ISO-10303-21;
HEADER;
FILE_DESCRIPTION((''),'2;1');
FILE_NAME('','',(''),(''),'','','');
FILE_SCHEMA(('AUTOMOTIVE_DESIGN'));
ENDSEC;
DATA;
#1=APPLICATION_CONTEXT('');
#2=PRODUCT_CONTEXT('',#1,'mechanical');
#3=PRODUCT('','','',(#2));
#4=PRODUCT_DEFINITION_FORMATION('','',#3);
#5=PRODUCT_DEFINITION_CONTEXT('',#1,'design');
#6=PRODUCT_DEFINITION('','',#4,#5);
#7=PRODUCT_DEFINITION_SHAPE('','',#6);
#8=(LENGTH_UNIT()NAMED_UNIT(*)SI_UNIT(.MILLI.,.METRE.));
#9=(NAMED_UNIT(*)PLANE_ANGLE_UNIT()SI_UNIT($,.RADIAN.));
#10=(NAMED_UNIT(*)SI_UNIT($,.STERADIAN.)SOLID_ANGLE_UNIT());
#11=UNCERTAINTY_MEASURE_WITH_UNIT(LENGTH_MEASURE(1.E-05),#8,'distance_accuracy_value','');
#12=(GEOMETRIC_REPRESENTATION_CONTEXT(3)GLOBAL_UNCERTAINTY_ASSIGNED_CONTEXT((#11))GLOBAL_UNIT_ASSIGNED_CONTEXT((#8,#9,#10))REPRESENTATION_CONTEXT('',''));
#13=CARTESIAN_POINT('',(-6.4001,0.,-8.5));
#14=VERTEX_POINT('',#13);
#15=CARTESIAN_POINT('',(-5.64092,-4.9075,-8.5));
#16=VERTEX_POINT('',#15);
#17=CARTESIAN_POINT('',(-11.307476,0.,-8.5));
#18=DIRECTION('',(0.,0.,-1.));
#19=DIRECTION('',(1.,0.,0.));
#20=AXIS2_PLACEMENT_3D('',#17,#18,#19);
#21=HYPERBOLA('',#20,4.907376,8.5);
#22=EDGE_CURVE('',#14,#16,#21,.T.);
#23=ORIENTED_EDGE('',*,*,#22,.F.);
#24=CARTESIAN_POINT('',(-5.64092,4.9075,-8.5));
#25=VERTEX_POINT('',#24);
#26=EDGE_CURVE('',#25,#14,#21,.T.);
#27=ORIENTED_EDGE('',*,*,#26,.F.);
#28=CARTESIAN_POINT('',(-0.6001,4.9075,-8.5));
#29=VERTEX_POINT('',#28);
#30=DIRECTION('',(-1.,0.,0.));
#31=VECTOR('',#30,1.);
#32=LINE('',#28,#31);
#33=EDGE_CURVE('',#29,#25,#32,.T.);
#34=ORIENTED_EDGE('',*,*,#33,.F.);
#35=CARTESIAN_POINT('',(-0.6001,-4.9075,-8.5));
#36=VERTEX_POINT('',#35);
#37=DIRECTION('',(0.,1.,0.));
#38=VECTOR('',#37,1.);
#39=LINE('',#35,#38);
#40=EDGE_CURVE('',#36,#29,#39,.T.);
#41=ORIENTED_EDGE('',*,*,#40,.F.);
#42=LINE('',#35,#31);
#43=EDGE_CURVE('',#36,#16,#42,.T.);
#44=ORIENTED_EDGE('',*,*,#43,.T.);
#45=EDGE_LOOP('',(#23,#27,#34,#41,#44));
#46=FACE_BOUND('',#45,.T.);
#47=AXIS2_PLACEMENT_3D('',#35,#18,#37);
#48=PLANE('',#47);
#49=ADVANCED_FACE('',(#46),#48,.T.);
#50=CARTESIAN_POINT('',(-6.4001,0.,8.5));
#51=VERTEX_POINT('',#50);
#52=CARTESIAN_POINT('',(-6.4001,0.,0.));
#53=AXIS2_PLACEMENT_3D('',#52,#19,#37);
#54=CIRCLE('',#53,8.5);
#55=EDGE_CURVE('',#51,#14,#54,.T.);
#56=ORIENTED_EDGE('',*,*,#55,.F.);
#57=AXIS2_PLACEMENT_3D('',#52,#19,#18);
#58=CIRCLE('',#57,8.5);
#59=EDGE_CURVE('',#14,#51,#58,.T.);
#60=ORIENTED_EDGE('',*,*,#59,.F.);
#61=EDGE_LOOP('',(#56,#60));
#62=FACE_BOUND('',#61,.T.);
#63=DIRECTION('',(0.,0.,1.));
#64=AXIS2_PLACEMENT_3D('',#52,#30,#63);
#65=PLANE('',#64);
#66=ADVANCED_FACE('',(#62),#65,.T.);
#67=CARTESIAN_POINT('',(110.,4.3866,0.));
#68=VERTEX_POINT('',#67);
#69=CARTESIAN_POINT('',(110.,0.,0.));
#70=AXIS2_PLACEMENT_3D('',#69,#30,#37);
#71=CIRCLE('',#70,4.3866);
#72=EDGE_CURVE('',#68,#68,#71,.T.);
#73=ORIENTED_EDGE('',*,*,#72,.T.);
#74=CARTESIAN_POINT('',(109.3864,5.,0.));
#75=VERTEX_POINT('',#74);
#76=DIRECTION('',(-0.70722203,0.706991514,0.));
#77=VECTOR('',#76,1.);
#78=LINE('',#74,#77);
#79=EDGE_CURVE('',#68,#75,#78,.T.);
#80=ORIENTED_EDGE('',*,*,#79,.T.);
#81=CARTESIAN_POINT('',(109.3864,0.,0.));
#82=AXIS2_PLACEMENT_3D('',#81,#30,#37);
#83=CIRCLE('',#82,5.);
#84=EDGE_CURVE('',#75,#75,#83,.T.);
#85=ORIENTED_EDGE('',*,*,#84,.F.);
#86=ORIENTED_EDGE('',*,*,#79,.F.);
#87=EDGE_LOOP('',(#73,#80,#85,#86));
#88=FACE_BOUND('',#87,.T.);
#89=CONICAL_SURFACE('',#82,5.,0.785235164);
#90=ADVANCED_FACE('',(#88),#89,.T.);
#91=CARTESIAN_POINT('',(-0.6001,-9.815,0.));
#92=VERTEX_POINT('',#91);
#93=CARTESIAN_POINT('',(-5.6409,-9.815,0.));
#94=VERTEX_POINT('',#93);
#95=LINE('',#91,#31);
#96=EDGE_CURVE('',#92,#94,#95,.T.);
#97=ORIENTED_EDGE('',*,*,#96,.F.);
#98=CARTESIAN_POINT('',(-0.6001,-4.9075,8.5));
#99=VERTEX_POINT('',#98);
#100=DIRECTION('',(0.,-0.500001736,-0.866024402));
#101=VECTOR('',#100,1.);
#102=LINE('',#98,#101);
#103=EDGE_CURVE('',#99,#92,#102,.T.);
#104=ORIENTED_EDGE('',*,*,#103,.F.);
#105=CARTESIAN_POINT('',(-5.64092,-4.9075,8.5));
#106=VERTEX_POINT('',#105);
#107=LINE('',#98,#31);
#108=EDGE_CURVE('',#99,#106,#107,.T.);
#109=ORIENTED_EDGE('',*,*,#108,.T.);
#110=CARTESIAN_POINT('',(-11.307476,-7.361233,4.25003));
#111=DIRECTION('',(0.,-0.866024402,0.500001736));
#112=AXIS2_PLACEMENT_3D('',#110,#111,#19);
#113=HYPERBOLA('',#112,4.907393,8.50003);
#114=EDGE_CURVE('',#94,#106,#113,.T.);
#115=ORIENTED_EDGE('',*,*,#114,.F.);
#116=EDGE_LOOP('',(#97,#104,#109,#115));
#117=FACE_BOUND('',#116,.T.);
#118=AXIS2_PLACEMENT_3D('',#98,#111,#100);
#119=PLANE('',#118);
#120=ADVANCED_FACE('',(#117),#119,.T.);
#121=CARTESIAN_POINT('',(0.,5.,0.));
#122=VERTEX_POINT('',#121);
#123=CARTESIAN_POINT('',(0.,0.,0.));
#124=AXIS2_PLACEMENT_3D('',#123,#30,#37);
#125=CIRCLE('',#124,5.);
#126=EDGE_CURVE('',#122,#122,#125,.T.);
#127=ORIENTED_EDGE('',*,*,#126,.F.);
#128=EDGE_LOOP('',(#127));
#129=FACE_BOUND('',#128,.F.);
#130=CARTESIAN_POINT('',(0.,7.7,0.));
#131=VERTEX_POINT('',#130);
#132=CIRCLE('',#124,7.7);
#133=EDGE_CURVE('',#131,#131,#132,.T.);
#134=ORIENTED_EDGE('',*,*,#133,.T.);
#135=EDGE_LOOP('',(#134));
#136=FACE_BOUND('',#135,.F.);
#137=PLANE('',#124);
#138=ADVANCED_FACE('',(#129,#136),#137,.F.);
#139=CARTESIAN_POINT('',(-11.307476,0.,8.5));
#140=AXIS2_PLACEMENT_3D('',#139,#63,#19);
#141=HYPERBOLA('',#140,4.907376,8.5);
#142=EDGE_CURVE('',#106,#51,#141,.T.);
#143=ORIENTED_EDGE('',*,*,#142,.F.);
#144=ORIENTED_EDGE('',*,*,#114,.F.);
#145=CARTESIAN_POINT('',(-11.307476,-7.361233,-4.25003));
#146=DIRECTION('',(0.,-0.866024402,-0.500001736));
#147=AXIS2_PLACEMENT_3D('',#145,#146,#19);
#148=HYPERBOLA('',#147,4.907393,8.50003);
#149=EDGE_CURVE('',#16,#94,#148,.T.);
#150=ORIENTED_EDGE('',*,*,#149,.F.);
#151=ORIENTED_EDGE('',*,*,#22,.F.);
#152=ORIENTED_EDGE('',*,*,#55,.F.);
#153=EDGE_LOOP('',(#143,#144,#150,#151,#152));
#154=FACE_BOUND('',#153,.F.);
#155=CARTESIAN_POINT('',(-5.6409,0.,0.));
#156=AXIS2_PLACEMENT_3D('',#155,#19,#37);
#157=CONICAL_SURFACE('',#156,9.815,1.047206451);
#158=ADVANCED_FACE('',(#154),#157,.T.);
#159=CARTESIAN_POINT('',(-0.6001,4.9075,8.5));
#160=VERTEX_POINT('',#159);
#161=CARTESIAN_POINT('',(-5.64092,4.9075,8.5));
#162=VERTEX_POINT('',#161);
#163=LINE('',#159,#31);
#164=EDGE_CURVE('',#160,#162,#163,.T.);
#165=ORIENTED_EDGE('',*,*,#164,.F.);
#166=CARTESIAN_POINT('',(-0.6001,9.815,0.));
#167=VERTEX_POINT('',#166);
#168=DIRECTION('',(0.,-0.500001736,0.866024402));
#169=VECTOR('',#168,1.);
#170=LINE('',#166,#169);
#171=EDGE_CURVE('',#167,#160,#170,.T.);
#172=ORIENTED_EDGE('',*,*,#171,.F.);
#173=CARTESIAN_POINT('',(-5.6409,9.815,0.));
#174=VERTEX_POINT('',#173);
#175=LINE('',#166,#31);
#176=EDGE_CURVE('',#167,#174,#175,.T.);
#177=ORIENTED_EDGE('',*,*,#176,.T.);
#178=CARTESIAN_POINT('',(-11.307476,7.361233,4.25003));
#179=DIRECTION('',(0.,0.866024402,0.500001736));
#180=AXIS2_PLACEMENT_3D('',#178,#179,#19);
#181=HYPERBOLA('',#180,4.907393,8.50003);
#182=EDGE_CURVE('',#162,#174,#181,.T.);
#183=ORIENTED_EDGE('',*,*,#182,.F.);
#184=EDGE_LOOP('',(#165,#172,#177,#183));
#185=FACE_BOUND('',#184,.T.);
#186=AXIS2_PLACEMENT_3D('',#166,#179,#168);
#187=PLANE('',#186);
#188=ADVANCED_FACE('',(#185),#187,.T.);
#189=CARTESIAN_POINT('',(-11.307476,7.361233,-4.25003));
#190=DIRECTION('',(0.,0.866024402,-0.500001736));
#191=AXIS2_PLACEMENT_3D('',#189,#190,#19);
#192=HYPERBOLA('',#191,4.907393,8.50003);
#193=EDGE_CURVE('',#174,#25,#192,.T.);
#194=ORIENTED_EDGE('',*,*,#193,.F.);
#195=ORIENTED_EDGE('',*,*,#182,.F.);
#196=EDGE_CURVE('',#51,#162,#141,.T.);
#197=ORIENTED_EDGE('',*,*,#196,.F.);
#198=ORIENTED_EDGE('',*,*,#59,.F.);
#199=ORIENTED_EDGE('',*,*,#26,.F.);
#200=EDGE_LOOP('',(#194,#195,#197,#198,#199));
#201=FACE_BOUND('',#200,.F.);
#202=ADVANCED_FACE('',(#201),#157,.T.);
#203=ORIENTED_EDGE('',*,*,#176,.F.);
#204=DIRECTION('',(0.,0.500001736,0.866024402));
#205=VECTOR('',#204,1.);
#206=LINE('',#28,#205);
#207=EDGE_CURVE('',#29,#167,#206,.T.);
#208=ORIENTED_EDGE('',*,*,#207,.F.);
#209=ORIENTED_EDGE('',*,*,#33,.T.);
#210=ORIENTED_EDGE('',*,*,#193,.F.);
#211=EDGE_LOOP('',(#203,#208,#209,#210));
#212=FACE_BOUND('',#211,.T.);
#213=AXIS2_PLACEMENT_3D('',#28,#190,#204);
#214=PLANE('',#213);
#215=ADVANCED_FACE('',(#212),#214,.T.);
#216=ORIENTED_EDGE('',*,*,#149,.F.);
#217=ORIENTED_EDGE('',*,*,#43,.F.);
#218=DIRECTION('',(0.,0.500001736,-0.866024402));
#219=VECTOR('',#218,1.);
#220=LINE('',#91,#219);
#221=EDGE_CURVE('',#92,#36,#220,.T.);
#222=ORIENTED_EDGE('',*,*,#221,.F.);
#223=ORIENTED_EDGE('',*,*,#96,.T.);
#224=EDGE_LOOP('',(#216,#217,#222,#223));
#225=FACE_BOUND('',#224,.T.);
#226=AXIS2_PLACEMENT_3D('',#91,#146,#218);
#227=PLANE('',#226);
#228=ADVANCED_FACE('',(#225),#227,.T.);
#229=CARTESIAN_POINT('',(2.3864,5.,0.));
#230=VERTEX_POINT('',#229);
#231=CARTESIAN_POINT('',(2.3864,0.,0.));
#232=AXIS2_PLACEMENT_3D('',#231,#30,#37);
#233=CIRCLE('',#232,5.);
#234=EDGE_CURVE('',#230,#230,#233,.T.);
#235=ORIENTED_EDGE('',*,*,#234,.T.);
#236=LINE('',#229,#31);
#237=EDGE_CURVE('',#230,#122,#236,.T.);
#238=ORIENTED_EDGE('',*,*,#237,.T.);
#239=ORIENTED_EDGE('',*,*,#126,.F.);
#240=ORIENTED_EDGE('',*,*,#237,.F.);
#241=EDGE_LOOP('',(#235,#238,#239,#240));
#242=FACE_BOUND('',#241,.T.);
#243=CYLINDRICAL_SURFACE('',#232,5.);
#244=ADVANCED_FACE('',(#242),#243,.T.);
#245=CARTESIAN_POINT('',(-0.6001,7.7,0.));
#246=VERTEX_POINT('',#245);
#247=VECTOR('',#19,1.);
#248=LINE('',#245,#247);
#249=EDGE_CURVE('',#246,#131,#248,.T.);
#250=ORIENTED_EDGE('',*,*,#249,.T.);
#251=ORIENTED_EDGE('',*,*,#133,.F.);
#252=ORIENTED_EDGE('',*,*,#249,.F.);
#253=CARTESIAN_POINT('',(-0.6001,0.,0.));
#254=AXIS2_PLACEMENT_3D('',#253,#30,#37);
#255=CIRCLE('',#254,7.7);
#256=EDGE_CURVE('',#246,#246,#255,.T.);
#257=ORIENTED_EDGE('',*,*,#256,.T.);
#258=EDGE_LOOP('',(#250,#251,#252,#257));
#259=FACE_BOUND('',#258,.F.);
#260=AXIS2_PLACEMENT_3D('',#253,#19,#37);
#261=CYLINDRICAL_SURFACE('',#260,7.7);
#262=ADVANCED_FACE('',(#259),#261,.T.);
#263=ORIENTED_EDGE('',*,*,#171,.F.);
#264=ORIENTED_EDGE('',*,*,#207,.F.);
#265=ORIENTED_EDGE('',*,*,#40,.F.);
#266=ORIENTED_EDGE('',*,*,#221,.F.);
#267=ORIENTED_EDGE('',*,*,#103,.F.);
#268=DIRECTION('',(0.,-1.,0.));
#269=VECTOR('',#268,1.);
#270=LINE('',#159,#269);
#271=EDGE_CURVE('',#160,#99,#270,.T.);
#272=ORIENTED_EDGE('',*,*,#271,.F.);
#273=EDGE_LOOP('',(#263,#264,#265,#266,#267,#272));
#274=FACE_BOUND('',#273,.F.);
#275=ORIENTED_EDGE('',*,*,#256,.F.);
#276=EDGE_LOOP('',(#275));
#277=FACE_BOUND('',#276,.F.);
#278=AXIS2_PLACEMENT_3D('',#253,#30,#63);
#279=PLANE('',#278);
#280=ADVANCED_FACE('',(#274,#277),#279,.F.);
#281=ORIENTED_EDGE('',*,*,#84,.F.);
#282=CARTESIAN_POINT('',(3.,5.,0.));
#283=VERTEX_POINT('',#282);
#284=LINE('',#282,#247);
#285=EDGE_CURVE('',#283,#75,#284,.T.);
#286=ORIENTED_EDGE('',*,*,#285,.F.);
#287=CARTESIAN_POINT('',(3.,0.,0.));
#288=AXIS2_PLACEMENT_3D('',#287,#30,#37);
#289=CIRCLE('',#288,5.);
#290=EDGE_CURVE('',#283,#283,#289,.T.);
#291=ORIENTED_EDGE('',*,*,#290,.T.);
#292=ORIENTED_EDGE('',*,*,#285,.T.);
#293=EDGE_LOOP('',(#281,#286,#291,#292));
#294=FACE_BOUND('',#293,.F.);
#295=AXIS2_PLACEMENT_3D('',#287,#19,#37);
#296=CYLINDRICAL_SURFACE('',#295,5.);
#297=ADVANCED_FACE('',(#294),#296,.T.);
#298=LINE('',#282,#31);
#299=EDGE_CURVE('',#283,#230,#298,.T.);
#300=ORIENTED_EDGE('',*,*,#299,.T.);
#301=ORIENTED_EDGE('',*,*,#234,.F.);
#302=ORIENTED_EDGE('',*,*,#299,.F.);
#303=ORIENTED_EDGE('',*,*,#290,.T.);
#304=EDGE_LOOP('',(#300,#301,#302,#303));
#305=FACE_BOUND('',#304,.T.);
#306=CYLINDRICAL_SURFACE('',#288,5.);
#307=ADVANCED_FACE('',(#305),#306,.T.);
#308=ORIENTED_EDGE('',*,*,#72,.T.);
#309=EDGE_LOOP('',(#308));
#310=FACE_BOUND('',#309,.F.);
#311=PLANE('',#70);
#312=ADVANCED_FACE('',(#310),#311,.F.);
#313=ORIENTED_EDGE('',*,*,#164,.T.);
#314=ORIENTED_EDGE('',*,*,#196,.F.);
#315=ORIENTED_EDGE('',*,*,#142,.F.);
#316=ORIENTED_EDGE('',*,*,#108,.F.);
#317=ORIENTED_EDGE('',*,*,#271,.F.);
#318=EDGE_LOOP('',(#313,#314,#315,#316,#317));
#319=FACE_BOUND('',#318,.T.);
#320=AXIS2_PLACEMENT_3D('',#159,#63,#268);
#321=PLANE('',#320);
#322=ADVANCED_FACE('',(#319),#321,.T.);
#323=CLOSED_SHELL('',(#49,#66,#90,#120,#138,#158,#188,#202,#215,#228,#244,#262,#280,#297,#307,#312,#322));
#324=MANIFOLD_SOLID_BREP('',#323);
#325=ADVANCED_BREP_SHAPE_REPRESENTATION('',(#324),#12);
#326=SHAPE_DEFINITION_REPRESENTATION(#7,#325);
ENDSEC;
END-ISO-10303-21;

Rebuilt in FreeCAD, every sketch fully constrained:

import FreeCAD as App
import Part
import Sketcher
from FreeCAD import Vector
Q = App.Units.Quantity


def edges_at(feature, points):
    """Names of the edges that pass closest to the given points."""
    edges = feature.Shape.Edges
    near = lambda p: min(range(len(edges)), key=lambda i: edges[i].distToShape(Part.Vertex(*p))[0])
    return sorted({f"Edge{near(p) + 1}" for p in points})


def add_polygon(sketch, points):
    """Adds a closed chain of lines whose ends are joined by coincident constraints."""
    first, n = sketch.GeometryCount, len(points)
    for a, b in zip(points, points[1:] + points[:1]):
        sketch.addGeometry(Part.LineSegment(App.Vector(*a, 0), App.Vector(*b, 0)), False)
    for i in range(n):
        sketch.addConstraint(Sketcher.Constraint("Coincident", first + i, 2, first + (i + 1) % n, 1))

doc = App.newDocument("Part")
body = doc.addObject("PartDesign::Body", "Body")

sketch1 = body.newObject("Sketcher::SketchObject", "Sketch")
sketch1.AttachmentSupport = (doc.getObject("XY_Plane"), [""])
sketch1.MapMode = "FlatFace"
add_polygon(sketch1, [(0, 5), (0, 7.7), (-0.6001, 7.7), (-0.6001, 0), (110, 0), (110, 5)])
sketch1.addConstraint([
    Sketcher.Constraint("Vertical", 0),
    Sketcher.Constraint("Horizontal", 1),
    Sketcher.Constraint("Vertical", 2),
    Sketcher.Constraint("Horizontal", 3),
    Sketcher.Constraint("Vertical", 4),
    Sketcher.Constraint("Horizontal", 5),
    Sketcher.Constraint("PointOnObject", 0, 2, -2),
    Sketcher.Constraint("PointOnObject", 2, 2, -1),
    Sketcher.Constraint("DistanceX", 5, 2, 5, 1, Q("110 mm")),
    Sketcher.Constraint("DistanceX", 1, 2, 1, 1, Q("0.6 mm")),
    Sketcher.Constraint("DistanceY", 4, 1, 4, 2, Q("5 mm")),
    Sketcher.Constraint("DistanceY", 0, 1, 0, 2, Q("2.7 mm")),
])
revolution = body.newObject("PartDesign::Revolution", "Revolution")
revolution.Profile = sketch1
revolution.ReferenceAxis = (sketch1, ["H_Axis"])
revolution.Angle = 360

sketch2 = body.newObject("Sketcher::SketchObject", "Sketch001")
sketch2.AttachmentSupport = (doc.getObject("YZ_Plane"), [""])
sketch2.MapMode = "FlatFace"
sketch2.AttachmentOffset = App.Placement(Vector(0, 0, -0.6001), App.Rotation())
add_polygon(sketch2, [(4.9075, 8.5), (9.815, 0), (4.9075, -8.5), (-4.9075, -8.5), (-9.815, 0), (-4.9075, 8.5)])
sketch2.addConstraint([
    Sketcher.Constraint("Horizontal", 2),
    Sketcher.Constraint("Horizontal", 5),
    Sketcher.Constraint("Symmetric", 0, 2, 3, 2, -1, 1),
    Sketcher.Constraint("Symmetric", 1, 2, 4, 2, -1, 1),
    Sketcher.Constraint("PointOnObject", 0, 2, -1),
    Sketcher.Constraint("Parallel", 0, 3),
    Sketcher.Constraint("Vertical", 2, 2, 4, 2),
    Sketcher.Constraint("DistanceY", 2, 2, 4, 2, Q("17 mm")),
    Sketcher.Constraint("Angle", 0, Q("-60 deg")),
    Sketcher.Constraint("DistanceX", 2, 2, 2, 1, Q("9.815 mm")),
])
pad1 = body.newObject("PartDesign::Pad", "Pad")
pad1.Profile = sketch2
pad1.Length = 5.8
pad1.Reversed = True

sketch3 = body.newObject("Sketcher::SketchObject", "Sketch002")
sketch3.AttachmentSupport = (doc.getObject("XY_Plane"), [""])
sketch3.MapMode = "FlatFace"
add_polygon(sketch3, [(-6.4001, 9.815), (-6.4001, 8.5), (-5.6409, 9.815)])
sketch3.addConstraint([
    Sketcher.Constraint("Vertical", 0),
    Sketcher.Constraint("Horizontal", 2),
    Sketcher.Constraint("Angle", 1, Q("60.0005 deg")),
    Sketcher.Constraint("DistanceX", 0, 2, -1, 1, Q("6.4 mm")),
    Sketcher.Constraint("DistanceY", -1, 1, 0, 2, Q("8.5 mm")),
    Sketcher.Constraint("DistanceY", 0, 2, 0, 1, Q("1.315 mm")),
])
groove = body.newObject("PartDesign::Groove", "Groove")
groove.Profile = sketch3
groove.ReferenceAxis = (sketch3, ["H_Axis"])
groove.Angle = 360
doc.recompute()

chamfer = body.newObject("PartDesign::Chamfer", "Chamfer")
chamfer.Base = (groove, edges_at(groove, [(110, -5, 0)]))
chamfer.ChamferType = "Two distances"
chamfer.Size = 0.6134
chamfer.Size2 = 0.6136

doc.recompute()
